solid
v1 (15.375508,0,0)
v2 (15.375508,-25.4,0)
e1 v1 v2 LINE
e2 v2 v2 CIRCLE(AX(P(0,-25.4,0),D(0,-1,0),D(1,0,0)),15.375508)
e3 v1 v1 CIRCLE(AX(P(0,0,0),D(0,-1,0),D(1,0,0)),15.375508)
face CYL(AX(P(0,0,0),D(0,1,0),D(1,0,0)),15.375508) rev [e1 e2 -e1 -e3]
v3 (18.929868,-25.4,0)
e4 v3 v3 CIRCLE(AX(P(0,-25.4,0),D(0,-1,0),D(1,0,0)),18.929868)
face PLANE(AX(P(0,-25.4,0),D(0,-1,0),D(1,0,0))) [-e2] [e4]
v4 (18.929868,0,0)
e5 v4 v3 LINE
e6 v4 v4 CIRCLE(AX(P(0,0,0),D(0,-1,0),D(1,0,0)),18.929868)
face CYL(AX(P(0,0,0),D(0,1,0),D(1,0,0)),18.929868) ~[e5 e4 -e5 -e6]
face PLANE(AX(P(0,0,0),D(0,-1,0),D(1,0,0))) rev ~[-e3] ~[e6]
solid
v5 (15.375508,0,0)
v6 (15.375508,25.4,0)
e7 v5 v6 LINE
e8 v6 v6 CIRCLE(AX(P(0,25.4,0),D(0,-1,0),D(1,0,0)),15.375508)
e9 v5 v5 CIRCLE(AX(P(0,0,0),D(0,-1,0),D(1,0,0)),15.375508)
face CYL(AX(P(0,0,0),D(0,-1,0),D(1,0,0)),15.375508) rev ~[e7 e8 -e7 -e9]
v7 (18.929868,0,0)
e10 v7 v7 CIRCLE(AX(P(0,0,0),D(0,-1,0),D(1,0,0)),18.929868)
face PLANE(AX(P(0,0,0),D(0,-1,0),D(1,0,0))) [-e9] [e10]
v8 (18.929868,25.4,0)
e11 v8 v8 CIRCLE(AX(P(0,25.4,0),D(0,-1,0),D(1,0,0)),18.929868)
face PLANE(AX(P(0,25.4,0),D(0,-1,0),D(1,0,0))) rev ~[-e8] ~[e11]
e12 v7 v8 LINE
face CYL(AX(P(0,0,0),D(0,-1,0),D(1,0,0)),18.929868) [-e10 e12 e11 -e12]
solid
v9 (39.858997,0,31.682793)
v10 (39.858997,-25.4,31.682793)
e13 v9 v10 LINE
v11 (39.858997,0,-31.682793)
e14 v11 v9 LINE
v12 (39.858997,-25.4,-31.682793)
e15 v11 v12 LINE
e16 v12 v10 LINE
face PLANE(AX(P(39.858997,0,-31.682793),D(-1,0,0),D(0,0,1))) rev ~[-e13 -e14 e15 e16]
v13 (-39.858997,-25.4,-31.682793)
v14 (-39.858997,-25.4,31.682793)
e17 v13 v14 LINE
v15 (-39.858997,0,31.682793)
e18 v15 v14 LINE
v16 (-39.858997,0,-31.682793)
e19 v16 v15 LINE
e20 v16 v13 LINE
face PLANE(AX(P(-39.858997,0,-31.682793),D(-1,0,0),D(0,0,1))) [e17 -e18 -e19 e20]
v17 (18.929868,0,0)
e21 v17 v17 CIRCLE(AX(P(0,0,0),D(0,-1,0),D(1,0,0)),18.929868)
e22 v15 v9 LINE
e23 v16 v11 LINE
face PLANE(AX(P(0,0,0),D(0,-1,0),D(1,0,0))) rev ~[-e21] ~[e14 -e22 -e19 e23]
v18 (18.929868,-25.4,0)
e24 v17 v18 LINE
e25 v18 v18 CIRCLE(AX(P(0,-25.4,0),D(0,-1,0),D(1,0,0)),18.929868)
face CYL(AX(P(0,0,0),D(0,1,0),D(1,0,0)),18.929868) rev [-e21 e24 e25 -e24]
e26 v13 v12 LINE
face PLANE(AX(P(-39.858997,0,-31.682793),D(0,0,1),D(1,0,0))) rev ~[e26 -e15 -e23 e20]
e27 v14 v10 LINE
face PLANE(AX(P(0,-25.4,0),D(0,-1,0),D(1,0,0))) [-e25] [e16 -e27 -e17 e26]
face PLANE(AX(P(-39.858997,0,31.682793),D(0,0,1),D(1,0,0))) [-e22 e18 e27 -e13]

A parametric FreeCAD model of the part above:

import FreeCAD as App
import Part
import Sketcher
from FreeCAD import Vector
Q = App.Units.Quantity

doc = App.newDocument("Part")
body = doc.addObject("PartDesign::Body", "Body")
body.AllowCompound = True

# Sketch on XZ plane
sketch1 = doc.addObject("Sketcher::SketchObject", "Sketch")
body.addObject(sketch1)
sketch1.AttachmentSupport = (doc.XZ_Plane, [""])
sketch1.MapMode = "FlatFace"
sketch1.addGeometry([
    Part.LineSegment(Vector(-40, 32, 0), Vector(-40, -32, 0)),  # 0
    Part.LineSegment(Vector(-40, -32, 0), Vector(40, -32, 0)),  # 1
    Part.LineSegment(Vector(40, -32, 0), Vector(40, 32, 0)),  # 2
    Part.LineSegment(Vector(40, 32, 0), Vector(-40, 32, 0)),  # 3
    Part.Circle(Vector(0, 0, 0), Vector(0, 0, 1), 19),  # 4
], False)
sketch1.addConstraint([
    Sketcher.Constraint("Coincident", 0, 2, 1, 1),
    Sketcher.Constraint("Coincident", 1, 2, 2, 1),
    Sketcher.Constraint("Coincident", 2, 2, 3, 1),
    Sketcher.Constraint("Coincident", 3, 2, 0, 1),
    Sketcher.Constraint("Vertical", 0),
    Sketcher.Constraint("Horizontal", 1),
    Sketcher.Constraint("Vertical", 2),
    Sketcher.Constraint("Horizontal", 3),
    Sketcher.Constraint("Coincident", 4, 3, -1, 1),
    Sketcher.Constraint("Symmetric", 0, 2, 2, 2, -1, 1),
    Sketcher.Constraint("Diameter", 4, 37.859736),
    Sketcher.Constraint("DistanceX", 1, 1, 1, 2, 79.717994),
    Sketcher.Constraint("DistanceY", 0, 2, 0, 1, 63.365586),
])
pad1 = doc.addObject("PartDesign::Pad", "Pad")
body.addObject(pad1)
pad1.Profile = sketch1
pad1.Length = Q("1 in")

# Sketch on XZ plane
sketch2 = doc.addObject("Sketcher::SketchObject", "Sketch001")
body.addObject(sketch2)
sketch2.AttachmentSupport = (doc.XZ_Plane, [""])
sketch2.MapMode = "FlatFace"
sketch2.addGeometry([
    Part.Circle(Vector(0, 0, 0), Vector(0, 0, 1), 19),
    Part.Circle(Vector(0, 0, 0), Vector(0, 0, 1), 15),
], False)
sketch2.addConstraint([
    Sketcher.Constraint("Coincident", 0, 3, -1, 1),
    Sketcher.Constraint("Coincident", 1, 3, -1, 1),
    Sketcher.Constraint("Diameter", 0, 37.859736),
    Sketcher.Constraint("Diameter", 1, 30.751016),
])
pad2 = doc.addObject("PartDesign::Pad", "Pad001")
body.addObject(pad2)
pad2.Profile = sketch2
pad2.Length = Q("1 in")
pad2.Reversed = True
body2 = doc.addObject("PartDesign::Body", "Body001")

# Sketch on XZ plane
sketch3 = doc.addObject("Sketcher::SketchObject", "Sketch002")
body2.addObject(sketch3)
sketch3.AttachmentSupport = (doc.getObject("XZ_Plane001"), [""])
sketch3.MapMode = "FlatFace"
sketch3.addGeometry([
    Part.Circle(Vector(0, 0, 0), Vector(0, 0, 1), 19),
    Part.Circle(Vector(0, 0, 0), Vector(0, 0, 1), 15),
], False)
sketch3.addConstraint([
    Sketcher.Constraint("Coincident", 0, 3, -1, 1),
    Sketcher.Constraint("Coincident", 1, 3, -1, 1),
    Sketcher.Constraint("Diameter", 0, 37.859736),
    Sketcher.Constraint("Diameter", 1, 30.751016),
])
pad3 = doc.addObject("PartDesign::Pad", "Pad002")
body2.addObject(pad3)
pad3.Profile = sketch3
pad3.Length = Q("1 in")

doc.recompute()
